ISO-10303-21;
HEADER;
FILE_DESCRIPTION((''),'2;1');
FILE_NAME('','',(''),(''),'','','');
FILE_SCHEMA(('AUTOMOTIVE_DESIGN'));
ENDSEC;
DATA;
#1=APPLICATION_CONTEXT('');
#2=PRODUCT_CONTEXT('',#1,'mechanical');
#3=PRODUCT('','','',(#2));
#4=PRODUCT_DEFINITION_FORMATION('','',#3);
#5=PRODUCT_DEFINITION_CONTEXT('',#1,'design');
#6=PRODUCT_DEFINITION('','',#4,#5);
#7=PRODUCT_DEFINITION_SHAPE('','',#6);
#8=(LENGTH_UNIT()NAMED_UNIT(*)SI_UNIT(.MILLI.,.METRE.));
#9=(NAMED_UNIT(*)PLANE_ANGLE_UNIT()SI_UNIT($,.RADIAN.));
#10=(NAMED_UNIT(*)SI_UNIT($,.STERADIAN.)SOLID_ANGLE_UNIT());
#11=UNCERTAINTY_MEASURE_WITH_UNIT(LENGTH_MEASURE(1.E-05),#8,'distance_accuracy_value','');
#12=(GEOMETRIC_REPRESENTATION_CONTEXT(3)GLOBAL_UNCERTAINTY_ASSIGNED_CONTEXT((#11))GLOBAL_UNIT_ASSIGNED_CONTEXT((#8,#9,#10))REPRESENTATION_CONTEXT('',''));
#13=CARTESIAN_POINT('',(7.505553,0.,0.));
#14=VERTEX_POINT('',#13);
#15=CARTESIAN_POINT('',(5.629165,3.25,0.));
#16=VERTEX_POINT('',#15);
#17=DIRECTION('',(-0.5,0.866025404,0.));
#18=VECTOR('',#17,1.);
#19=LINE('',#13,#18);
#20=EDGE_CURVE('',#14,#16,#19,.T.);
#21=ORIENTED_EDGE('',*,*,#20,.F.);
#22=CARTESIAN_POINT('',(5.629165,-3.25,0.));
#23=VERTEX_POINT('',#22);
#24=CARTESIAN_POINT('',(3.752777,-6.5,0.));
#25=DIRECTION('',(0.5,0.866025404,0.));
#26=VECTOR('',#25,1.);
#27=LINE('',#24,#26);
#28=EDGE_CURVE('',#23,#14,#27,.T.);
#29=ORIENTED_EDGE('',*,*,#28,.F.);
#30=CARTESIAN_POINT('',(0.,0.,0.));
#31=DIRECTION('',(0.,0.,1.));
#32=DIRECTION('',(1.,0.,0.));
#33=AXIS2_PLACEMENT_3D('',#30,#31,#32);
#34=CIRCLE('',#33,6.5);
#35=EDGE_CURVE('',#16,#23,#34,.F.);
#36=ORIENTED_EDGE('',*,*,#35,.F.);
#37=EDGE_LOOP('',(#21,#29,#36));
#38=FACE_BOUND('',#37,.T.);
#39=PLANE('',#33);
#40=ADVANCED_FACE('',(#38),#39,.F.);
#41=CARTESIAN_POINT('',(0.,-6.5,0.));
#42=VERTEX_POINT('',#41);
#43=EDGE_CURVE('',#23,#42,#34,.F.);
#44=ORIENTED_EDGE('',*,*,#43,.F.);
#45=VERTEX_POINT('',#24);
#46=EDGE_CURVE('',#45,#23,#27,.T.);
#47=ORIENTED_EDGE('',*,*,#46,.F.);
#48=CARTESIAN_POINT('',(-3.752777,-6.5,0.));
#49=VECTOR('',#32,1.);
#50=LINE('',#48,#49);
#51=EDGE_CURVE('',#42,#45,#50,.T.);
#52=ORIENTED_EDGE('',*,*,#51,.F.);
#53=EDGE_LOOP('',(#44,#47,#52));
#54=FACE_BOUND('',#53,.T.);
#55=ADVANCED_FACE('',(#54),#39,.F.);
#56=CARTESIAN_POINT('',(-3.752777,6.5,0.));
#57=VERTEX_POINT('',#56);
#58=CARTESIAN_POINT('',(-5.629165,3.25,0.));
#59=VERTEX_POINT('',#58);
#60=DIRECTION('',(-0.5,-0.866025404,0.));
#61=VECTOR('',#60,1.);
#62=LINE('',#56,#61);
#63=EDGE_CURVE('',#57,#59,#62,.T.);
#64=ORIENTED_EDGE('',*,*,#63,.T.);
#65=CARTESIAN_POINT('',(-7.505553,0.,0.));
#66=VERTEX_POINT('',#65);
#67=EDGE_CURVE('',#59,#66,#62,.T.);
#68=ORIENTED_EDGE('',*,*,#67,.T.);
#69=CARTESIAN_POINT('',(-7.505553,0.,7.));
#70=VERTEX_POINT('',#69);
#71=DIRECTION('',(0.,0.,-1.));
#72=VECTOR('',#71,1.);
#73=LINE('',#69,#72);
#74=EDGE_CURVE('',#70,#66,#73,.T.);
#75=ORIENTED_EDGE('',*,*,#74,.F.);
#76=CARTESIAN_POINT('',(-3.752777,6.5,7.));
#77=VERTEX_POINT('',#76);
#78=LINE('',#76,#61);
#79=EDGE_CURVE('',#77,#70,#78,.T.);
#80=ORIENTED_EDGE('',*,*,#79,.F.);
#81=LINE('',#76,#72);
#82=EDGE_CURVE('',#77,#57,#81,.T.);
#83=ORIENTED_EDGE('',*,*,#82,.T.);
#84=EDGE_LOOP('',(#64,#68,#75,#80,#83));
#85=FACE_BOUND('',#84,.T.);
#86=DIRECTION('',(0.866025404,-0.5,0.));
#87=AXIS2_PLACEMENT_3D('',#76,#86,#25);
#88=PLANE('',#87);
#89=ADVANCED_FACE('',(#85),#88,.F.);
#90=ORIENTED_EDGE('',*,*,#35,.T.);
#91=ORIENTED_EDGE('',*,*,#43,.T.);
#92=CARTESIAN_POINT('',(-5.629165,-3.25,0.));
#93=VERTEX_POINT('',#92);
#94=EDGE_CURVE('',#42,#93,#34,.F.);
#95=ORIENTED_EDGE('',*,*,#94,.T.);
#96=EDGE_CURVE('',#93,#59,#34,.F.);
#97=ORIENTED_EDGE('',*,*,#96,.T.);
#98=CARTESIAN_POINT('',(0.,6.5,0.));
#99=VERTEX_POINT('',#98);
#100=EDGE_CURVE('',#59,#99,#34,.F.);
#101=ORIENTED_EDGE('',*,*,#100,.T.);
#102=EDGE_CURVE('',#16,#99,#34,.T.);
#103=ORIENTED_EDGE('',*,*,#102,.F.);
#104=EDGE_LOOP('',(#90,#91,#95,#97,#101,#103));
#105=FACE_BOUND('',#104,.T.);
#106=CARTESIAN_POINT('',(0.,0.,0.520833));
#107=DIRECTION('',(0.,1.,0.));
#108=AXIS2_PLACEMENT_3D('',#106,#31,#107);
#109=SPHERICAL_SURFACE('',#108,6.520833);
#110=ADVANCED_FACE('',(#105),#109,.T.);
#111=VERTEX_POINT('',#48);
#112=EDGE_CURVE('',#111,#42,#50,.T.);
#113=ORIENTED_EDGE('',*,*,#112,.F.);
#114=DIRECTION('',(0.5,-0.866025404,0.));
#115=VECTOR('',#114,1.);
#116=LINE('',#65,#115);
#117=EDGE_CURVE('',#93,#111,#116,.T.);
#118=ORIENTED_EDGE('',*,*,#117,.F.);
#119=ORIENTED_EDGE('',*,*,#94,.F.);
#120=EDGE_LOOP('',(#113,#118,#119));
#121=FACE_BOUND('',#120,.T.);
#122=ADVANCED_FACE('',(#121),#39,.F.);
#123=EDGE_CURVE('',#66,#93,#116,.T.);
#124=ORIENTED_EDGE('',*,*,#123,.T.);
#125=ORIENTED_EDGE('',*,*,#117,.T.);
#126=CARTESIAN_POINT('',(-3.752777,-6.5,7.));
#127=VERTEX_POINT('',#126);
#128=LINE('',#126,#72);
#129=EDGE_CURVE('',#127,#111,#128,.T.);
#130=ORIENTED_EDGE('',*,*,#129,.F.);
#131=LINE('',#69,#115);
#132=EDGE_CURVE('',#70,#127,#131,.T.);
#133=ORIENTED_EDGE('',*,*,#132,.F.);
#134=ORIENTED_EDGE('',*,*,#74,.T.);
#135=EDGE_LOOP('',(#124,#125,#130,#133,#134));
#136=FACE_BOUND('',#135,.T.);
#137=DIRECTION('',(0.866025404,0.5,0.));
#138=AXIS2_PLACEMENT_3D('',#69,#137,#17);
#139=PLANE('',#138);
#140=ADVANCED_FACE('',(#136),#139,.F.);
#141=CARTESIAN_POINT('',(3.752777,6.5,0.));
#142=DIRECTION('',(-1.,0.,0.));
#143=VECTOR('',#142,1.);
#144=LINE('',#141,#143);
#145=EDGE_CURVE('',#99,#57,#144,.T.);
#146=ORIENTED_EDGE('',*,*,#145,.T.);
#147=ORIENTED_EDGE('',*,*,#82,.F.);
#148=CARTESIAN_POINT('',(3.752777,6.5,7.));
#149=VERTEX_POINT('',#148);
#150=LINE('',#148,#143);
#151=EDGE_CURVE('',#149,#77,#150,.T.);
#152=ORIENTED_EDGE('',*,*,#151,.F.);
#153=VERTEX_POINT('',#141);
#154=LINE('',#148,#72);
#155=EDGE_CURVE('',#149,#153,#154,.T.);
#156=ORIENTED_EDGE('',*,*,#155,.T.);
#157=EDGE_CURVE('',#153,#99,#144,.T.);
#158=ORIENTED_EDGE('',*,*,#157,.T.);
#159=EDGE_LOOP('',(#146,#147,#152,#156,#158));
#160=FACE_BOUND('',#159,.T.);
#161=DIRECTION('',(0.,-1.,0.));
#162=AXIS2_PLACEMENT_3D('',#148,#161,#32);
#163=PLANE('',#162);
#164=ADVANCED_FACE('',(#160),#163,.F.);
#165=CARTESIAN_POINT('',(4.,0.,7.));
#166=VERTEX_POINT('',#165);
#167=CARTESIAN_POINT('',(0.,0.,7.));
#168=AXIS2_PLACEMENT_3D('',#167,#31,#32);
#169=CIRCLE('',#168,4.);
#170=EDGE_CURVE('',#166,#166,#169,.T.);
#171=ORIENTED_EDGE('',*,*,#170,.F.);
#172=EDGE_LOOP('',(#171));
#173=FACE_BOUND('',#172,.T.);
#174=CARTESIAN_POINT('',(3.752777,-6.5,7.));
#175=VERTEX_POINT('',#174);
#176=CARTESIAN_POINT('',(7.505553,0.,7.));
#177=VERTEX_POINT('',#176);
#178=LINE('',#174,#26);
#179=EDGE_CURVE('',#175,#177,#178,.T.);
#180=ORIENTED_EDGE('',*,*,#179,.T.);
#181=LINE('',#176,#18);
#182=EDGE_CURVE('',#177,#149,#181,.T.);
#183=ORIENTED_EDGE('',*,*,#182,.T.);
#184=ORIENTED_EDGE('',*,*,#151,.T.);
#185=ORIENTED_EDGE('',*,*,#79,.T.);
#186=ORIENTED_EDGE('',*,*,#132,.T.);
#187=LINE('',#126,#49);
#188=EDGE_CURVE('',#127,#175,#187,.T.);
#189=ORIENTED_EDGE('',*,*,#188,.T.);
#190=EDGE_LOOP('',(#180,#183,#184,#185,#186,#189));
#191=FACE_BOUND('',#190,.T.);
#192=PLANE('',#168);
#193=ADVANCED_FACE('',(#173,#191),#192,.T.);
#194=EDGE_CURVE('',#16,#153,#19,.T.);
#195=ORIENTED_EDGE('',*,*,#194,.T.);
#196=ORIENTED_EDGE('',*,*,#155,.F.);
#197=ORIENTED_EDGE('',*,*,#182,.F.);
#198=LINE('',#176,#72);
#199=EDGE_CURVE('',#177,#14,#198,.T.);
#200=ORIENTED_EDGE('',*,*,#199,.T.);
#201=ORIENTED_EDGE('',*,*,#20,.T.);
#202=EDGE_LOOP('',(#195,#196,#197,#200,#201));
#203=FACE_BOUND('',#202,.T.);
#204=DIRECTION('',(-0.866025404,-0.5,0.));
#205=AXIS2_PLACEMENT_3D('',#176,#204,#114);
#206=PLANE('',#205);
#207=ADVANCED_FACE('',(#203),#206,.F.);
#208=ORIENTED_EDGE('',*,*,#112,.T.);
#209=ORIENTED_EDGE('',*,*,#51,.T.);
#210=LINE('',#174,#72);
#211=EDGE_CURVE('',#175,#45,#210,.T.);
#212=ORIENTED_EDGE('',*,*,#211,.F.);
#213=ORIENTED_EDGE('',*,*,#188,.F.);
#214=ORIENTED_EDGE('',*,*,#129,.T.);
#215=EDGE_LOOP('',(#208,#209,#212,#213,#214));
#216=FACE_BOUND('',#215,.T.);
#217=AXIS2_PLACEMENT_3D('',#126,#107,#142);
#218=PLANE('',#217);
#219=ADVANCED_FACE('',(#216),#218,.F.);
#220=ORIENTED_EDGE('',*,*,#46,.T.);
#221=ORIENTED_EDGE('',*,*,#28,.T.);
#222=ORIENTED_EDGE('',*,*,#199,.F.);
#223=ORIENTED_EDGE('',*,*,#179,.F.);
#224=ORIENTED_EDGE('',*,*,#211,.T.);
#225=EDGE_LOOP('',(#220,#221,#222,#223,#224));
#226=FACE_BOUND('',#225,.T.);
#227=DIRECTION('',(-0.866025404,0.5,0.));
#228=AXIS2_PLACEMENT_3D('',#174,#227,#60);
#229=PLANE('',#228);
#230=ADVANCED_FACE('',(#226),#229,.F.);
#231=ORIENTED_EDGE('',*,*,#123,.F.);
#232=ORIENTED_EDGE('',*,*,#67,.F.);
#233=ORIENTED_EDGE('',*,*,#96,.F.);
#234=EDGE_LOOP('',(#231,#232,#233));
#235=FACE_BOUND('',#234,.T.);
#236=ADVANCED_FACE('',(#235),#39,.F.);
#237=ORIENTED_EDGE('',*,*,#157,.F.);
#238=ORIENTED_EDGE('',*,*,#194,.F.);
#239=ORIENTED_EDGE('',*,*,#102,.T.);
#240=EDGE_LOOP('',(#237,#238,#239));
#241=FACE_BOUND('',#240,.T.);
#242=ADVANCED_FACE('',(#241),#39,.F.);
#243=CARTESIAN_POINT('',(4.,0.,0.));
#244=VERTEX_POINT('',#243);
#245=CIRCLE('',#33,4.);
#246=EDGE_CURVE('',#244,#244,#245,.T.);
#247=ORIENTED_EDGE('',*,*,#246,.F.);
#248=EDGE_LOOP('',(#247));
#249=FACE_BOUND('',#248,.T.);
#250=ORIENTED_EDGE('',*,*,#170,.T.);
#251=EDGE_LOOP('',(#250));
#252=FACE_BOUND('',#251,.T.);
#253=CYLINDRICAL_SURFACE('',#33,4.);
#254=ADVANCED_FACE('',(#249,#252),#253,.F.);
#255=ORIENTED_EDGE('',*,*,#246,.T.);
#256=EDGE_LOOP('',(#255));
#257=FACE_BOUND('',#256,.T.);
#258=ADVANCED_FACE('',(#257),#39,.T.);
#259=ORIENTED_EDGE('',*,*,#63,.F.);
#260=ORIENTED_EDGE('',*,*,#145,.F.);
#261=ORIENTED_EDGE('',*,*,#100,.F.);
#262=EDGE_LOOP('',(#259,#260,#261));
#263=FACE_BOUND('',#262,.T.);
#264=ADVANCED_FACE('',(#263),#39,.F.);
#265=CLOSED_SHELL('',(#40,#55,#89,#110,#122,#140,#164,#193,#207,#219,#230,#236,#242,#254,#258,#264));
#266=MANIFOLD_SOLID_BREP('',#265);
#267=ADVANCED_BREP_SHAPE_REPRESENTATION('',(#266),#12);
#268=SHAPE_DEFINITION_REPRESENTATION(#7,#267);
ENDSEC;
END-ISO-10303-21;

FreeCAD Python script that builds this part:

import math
import FreeCAD as App
import Part
import Sketcher
from FreeCAD import Vector
Q = App.Units.Quantity


def add_polygon(sketch, points):
    """Adds a closed chain of lines whose ends are joined by coincident constraints."""
    first, n = sketch.GeometryCount, len(points)
    for a, b in zip(points, points[1:] + points[:1]):
        sketch.addGeometry(Part.LineSegment(App.Vector(*a, 0), App.Vector(*b, 0)), False)
    for i in range(n):
        sketch.addConstraint(Sketcher.Constraint("Coincident", first + i, 2, first + (i + 1) % n, 1))

doc = App.newDocument("Part")
body = doc.addObject("PartDesign::Body", "Body")

sketch1 = body.newObject("Sketcher::SketchObject", "Sketch")
sketch1.AttachmentSupport = (doc.getObject("XY_Plane"), [""])
sketch1.MapMode = "FlatFace"
add_polygon(sketch1, [(8, 0), (4, 6), (-4, 6), (-8, 0), (-4, -6), (4, -6)])
sketch1.addConstraint(Sketcher.Constraint("Horizontal", 1))
sketch1.addConstraint(Sketcher.Constraint("Horizontal", 4))
sketch1.addConstraint(Sketcher.Constraint("Symmetric", 0, 2, 3, 2, -1, 1))
sketch1.addConstraint(Sketcher.Constraint("Symmetric", 2, 2, 5, 2, -1, 1))
sketch1.addConstraint(Sketcher.Constraint("PointOnObject", 2, 2, -1))
sketch1.addConstraint(Sketcher.Constraint("Parallel", 2, 5))
sketch1.addConstraint(Sketcher.Constraint("Vertical", 1, 2, 3, 2))
sketch1.addConstraint(Sketcher.Constraint("Angle", 0, Q("120 deg")))
sketch1.addConstraint(Sketcher.Constraint("DistanceY", 3, 2, 1, 2, 13.0))
sketch1.addConstraint(Sketcher.Constraint("DistanceX", 1, 2, 1, 1, 7.505554))
pad1 = body.newObject("PartDesign::Pad", "Pad")
pad1.Profile = sketch1
pad1.Length = 7

sketch2 = body.newObject("Sketcher::SketchObject", "Sketch001")
sketch2.AttachmentSupport = (doc.getObject("YZ_Plane"), [""])
sketch2.MapMode = "FlatFace"
sketch2.addGeometry(Part.LineSegment(Vector(0, -6, 0), Vector(0, 0, 0)), False)
sketch2.addGeometry(Part.LineSegment(Vector(0, 0, 0), Vector(-6, 0, 0)), False)
sketch2.addGeometry(Part.ArcOfCircle(Part.Circle(Vector(0, 1, 0), Vector(0, 0, 1), 7), math.radians(-175), math.radians(-90)), False)
sketch2.addConstraint(Sketcher.Constraint("Coincident", 0, 2, 1, 1))
sketch2.addConstraint(Sketcher.Constraint("Coincident", 1, 2, 2, 1))
sketch2.addConstraint(Sketcher.Constraint("Coincident", 2, 2, 0, 1))
sketch2.addConstraint(Sketcher.Constraint("Vertical", 0))
sketch2.addConstraint(Sketcher.Constraint("Horizontal", 1))
sketch2.addConstraint(Sketcher.Constraint("Coincident", 0, 2, -1, 1))
sketch2.addConstraint(Sketcher.Constraint("PointOnObject", 2, 3, -2))
sketch2.addConstraint(Sketcher.Constraint("DistanceY", 0, 1, 0, 2, 6.0))
sketch2.addConstraint(Sketcher.Constraint("DistanceX", 1, 2, 1, 1, 6.5))
revolution = body.newObject("PartDesign::Revolution", "Revolution")
revolution.Profile = sketch2
revolution.ReferenceAxis = (sketch2, ["V_Axis"])
revolution.Angle = 360

sketch3 = body.newObject("Sketcher::SketchObject", "Sketch002")
sketch3.AttachmentSupport = (doc.getObject("XY_Plane"), [""])
sketch3.MapMode = "FlatFace"
sketch3.AttachmentOffset = App.Placement(Vector(0, 0, 7), App.Rotation())
sketch3.addGeometry(Part.Circle(Vector(0, 0, 0), Vector(0, 0, 1), 4), False)
sketch3.addConstraint(Sketcher.Constraint("Coincident", 0, 3, -1, 1))
sketch3.addConstraint(Sketcher.Constraint("Diameter", 0, 8.0))
pocket1 = body.newObject("PartDesign::Pocket", "Pocket")
pocket1.Profile = sketch3
pocket1.Length = 7

doc.recompute()
